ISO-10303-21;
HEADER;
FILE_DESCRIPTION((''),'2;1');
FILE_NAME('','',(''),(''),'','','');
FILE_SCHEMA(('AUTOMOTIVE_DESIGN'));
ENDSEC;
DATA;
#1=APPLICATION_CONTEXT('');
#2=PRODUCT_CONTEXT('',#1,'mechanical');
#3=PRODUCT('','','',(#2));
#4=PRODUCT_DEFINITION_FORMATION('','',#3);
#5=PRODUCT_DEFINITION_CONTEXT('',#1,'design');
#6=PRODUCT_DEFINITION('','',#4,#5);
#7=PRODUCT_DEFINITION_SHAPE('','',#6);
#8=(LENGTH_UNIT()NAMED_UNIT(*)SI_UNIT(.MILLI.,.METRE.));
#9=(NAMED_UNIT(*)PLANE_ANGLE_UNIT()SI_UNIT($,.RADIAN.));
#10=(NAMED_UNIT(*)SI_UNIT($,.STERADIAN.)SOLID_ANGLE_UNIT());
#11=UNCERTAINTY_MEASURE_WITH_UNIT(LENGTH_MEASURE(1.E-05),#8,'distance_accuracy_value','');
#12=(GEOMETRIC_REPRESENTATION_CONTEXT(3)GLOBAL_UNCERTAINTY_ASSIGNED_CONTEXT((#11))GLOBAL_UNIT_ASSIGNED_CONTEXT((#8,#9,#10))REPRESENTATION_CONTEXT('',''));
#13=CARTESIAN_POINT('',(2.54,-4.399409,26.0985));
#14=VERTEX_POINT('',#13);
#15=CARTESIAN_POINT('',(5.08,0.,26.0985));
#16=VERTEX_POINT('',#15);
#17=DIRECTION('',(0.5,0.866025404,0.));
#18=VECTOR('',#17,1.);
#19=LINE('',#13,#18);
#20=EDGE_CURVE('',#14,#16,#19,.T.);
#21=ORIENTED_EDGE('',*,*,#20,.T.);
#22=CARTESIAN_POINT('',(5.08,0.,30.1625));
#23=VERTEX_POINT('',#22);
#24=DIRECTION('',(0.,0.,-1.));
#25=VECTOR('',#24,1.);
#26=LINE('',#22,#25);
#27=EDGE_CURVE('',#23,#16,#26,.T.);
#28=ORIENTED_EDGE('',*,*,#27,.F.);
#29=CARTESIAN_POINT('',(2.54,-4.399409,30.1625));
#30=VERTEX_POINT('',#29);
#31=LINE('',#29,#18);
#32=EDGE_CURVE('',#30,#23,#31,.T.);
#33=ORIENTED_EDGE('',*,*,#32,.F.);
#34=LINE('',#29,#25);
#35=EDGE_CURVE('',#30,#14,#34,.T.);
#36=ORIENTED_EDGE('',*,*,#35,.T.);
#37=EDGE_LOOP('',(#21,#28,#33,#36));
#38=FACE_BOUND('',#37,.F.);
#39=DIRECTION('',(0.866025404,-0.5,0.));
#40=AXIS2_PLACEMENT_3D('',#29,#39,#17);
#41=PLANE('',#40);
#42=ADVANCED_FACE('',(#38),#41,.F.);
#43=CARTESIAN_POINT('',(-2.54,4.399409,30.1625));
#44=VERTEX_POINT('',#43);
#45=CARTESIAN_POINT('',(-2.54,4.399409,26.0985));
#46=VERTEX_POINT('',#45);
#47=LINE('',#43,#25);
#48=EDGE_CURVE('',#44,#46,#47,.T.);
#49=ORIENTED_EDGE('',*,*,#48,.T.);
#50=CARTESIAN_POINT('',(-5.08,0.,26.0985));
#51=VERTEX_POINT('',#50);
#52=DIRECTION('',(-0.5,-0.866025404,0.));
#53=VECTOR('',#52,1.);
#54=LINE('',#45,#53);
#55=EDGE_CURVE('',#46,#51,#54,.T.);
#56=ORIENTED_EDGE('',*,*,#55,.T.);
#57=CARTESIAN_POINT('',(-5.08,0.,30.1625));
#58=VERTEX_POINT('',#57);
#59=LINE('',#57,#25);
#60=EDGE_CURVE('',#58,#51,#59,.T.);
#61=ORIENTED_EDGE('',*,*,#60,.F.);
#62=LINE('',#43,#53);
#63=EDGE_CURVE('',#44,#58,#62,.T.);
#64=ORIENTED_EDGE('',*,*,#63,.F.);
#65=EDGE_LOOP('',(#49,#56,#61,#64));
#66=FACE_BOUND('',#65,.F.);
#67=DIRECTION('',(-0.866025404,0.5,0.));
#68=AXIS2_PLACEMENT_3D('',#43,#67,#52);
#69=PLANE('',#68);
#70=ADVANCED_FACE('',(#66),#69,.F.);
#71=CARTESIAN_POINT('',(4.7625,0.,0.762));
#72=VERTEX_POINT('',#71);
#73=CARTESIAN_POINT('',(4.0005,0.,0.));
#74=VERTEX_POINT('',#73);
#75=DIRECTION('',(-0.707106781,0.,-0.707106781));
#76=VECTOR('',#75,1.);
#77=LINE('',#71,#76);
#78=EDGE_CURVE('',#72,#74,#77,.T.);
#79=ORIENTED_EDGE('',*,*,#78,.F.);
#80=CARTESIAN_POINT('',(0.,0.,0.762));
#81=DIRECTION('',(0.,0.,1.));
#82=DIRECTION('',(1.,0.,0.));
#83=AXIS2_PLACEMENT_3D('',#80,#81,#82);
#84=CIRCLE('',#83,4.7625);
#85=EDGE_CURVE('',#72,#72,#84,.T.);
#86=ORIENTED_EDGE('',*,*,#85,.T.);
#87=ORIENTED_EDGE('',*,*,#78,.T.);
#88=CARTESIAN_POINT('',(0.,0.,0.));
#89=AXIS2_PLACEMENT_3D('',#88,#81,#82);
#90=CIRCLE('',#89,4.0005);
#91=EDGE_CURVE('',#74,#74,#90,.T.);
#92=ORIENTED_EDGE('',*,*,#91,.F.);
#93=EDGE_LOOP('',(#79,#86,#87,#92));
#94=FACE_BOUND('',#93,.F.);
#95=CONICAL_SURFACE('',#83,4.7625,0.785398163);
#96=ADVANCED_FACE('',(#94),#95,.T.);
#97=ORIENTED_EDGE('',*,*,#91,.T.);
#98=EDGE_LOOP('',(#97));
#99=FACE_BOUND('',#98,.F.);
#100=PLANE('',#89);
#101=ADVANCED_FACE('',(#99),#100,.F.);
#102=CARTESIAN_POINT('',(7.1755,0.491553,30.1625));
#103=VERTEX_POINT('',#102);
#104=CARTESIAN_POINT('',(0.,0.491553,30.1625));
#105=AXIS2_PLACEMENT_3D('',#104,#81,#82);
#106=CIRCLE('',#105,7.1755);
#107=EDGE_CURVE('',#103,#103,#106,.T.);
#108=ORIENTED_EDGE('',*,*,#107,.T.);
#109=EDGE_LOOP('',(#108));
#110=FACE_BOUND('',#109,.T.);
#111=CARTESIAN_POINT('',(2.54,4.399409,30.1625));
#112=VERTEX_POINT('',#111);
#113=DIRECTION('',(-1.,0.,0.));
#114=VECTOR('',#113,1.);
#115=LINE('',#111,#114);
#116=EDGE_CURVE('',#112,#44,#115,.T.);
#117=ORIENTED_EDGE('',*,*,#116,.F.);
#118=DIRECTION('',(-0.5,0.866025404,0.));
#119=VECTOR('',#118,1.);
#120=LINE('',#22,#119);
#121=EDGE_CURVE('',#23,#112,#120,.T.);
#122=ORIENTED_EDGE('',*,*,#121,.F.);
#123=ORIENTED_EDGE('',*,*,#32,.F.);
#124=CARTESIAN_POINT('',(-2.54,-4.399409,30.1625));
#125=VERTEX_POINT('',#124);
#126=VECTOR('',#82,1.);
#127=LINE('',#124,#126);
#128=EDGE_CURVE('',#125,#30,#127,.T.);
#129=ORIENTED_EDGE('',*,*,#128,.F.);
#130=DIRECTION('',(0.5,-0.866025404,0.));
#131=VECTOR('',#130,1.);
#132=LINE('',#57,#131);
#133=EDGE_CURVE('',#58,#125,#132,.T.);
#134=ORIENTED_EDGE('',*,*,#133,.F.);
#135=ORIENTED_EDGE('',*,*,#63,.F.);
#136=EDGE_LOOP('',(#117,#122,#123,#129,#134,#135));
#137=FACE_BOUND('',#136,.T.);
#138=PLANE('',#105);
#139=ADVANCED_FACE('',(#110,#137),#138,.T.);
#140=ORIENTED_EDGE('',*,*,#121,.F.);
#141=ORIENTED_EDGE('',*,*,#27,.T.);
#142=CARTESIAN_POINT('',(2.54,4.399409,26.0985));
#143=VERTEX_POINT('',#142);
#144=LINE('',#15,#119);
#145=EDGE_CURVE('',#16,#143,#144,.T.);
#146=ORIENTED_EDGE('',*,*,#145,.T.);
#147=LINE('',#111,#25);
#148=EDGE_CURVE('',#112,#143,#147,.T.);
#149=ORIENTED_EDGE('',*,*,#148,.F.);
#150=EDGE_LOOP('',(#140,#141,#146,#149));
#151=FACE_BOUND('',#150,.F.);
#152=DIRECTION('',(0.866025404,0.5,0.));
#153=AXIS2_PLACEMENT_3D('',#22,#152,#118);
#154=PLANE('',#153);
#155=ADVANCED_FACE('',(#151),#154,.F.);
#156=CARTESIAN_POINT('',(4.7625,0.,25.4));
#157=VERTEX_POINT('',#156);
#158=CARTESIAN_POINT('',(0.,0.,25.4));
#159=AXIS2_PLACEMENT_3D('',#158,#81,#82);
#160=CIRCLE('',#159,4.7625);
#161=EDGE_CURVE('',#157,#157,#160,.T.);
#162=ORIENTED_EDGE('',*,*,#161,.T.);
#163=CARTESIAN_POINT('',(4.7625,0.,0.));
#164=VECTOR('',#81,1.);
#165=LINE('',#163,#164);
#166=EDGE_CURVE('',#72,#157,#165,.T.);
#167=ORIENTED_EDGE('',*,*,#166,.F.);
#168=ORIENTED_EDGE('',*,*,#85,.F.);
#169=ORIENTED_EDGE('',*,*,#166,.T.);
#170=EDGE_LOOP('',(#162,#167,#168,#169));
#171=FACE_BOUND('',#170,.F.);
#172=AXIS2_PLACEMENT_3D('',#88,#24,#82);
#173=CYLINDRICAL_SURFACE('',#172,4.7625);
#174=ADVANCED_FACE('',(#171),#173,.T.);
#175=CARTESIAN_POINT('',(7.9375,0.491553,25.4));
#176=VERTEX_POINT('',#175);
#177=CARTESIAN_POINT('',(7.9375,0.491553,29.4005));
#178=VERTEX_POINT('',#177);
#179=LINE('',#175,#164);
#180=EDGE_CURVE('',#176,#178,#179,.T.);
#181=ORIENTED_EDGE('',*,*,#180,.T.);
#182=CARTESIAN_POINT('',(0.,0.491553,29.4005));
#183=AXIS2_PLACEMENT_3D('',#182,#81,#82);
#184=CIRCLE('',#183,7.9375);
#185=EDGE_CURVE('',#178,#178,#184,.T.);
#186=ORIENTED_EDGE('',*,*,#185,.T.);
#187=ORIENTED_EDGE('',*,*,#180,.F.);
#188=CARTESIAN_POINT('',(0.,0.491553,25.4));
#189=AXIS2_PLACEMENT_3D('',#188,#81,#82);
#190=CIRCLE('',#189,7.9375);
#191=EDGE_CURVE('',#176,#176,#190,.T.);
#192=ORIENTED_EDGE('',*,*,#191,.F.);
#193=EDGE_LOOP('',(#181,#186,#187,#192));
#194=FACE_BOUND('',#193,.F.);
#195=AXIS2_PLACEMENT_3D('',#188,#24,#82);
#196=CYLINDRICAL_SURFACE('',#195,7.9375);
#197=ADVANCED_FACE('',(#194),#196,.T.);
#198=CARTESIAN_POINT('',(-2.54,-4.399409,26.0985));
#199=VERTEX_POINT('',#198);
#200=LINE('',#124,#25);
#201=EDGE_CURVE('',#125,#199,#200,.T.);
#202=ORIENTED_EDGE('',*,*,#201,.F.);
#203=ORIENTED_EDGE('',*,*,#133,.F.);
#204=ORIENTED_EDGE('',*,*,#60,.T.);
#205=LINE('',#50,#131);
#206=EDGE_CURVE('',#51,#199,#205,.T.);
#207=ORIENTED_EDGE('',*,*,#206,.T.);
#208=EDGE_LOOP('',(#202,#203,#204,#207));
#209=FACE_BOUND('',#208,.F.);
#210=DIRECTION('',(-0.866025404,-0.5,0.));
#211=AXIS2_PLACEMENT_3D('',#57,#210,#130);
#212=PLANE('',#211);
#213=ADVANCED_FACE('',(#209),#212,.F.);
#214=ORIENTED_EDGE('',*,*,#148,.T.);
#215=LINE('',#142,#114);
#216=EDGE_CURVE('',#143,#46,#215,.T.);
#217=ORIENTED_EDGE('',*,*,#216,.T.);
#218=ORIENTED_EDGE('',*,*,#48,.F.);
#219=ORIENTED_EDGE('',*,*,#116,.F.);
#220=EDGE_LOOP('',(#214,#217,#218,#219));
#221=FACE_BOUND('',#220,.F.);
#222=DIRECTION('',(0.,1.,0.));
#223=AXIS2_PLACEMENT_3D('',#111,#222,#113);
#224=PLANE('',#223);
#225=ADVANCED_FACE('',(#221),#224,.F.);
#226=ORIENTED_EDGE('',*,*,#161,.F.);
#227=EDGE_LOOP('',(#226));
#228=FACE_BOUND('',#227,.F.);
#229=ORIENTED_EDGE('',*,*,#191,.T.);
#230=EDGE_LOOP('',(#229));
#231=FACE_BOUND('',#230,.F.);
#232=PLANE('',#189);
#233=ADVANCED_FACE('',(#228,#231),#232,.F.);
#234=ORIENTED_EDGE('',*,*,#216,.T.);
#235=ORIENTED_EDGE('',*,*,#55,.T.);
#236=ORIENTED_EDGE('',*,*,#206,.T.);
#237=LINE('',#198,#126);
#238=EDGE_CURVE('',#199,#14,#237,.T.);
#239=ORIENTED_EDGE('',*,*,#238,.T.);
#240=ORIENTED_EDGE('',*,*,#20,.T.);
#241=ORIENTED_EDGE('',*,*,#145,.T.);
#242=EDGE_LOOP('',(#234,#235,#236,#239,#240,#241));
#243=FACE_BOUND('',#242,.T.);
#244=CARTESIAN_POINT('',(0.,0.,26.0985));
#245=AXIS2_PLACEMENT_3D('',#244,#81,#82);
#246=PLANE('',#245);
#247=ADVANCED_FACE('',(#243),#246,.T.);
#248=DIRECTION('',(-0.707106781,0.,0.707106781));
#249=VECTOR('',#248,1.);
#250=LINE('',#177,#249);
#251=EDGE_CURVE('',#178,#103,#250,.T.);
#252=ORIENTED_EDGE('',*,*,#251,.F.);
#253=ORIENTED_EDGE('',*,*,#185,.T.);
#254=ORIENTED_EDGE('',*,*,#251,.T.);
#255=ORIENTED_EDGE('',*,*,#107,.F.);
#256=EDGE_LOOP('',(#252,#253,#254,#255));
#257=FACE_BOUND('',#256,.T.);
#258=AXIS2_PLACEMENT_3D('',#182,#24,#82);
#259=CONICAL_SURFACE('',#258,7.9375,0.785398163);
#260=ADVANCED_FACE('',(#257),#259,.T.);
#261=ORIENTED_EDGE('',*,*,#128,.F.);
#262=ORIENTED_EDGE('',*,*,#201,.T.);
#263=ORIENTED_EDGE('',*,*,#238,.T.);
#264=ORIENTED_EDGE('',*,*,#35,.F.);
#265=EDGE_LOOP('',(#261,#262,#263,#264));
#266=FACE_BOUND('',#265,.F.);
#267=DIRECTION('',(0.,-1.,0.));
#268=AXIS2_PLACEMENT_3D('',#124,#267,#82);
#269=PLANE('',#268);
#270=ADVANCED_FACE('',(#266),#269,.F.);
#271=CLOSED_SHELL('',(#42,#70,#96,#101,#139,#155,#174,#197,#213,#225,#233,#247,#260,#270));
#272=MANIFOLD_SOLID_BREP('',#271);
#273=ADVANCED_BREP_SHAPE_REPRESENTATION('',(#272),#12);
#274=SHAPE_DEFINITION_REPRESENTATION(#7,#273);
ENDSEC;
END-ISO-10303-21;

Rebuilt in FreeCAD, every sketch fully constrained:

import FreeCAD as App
import Part
import Sketcher
Q = App.Units.Quantity


def edges_at(feature, points):
    """Names of the edges that pass closest to the given points."""
    edges = feature.Shape.Edges
    near = lambda p: min(range(len(edges)), key=lambda i: edges[i].distToShape(Part.Vertex(*p))[0])
    return sorted({f"Edge{near(p) + 1}" for p in points})

doc = App.newDocument("Part")
body = doc.addObject("PartDesign::Body", "Body")

sketch1 = body.newObject("Sketcher::SketchObject", "Sketch")
sketch1.AttachmentSupport = (doc.getObject("XY_Plane"), [""])
sketch1.MapMode = "FlatFace"
sketch1.addGeometry(Part.Circle(App.Vector(0, 0, 0), App.Vector(0, 0, 1), 4.8), False)
sketch1.addConstraint([
    Sketcher.Constraint("Coincident", 0, 3, -1, 1),
    Sketcher.Constraint("Diameter", 0, Q("0.375 in")),
])
pad1 = body.newObject("PartDesign::Pad", "Pad")
pad1.Profile = sketch1
pad1.Length = Q("1 in")

sketch2 = body.newObject("Sketcher::SketchObject", "Sketch001")
sketch2.AttachmentSupport = (doc.getObject("XY_Plane"), [""])
sketch2.MapMode = "FlatFace"
sketch2.AttachmentOffset = App.Placement(App.Vector(0, 0, 1 * 25.4), App.Rotation())
sketch2.addGeometry(Part.Circle(App.Vector(0, 0, 0), App.Vector(0, 0, 1), 8), False)
sketch2.addConstraint([
    Sketcher.Constraint("PointOnObject", 0, 3, -2),
    Sketcher.Constraint("Diameter", 0, Q("0.625 in")),
    Sketcher.Constraint("DistanceY", -1, 1, 0, 3, Q("0.491553 mm")),
])
pad2 = body.newObject("PartDesign::Pad", "Pad001")
pad2.Profile = sketch2
pad2.Length = Q("0.1875 in")
doc.recompute()

chamfer = body.newObject("PartDesign::Chamfer", "Chamfer")
chamfer.Base = (pad2, edges_at(pad2, [(-7.938, 0.492, 30.163), (-4.763, 0, 0)]))
chamfer.Size = Q("0.03 in")

sketch3 = body.newObject("Sketcher::SketchObject", "Sketch002")
sketch3.AttachmentSupport = (doc.getObject("XY_Plane"), [""])
sketch3.MapMode = "FlatFace"
sketch3.AttachmentOffset = App.Placement(App.Vector(0, 0, 1.1875 * 25.4), App.Rotation())
sketch3.addGeometry([
    Part.LineSegment(App.Vector(5, 0, 0), App.Vector(3, 4, 0)),
    Part.LineSegment(App.Vector(3, 4, 0), App.Vector(-3, 4, 0)),
    Part.LineSegment(App.Vector(-3, 4, 0), App.Vector(-5, 0, 0)),
    Part.LineSegment(App.Vector(-5, 0, 0), App.Vector(-3, -4, 0)),
    Part.LineSegment(App.Vector(-3, -4, 0), App.Vector(3, -4, 0)),
    Part.LineSegment(App.Vector(3, -4, 0), App.Vector(5, 0, 0)),
], False)
sketch3.addConstraint([
    Sketcher.Constraint("Coincident", 0, 2, 1, 1),
    Sketcher.Constraint("Coincident", 1, 2, 2, 1),
    Sketcher.Constraint("Coincident", 2, 2, 3, 1),
    Sketcher.Constraint("Coincident", 3, 2, 4, 1),
    Sketcher.Constraint("Coincident", 4, 2, 5, 1),
    Sketcher.Constraint("Coincident", 5, 2, 0, 1),
    Sketcher.Constraint("Horizontal", 1),
    Sketcher.Constraint("Horizontal", 4),
    Sketcher.Constraint("Symmetric", 0, 2, 3, 2, -1, 1),
    Sketcher.Constraint("Symmetric", 2, 2, 5, 2, -1, 1),
    Sketcher.Constraint("PointOnObject", 2, 2, -1),
    Sketcher.Constraint("Parallel", 2, 5),
    Sketcher.Constraint("Vertical", 1, 2, 3, 2),
    Sketcher.Constraint("DistanceX", 1, 2, 1, 1, Q("0.2 in")),
    Sketcher.Constraint("Angle", 0, Q("120 deg")),
    Sketcher.Constraint("Distance", 0, Q("0.2 in")),
])
pocket1 = body.newObject("PartDesign::Pocket", "Pocket")
pocket1.Profile = sketch3
pocket1.Length = Q("0.16 in")

doc.recompute()
